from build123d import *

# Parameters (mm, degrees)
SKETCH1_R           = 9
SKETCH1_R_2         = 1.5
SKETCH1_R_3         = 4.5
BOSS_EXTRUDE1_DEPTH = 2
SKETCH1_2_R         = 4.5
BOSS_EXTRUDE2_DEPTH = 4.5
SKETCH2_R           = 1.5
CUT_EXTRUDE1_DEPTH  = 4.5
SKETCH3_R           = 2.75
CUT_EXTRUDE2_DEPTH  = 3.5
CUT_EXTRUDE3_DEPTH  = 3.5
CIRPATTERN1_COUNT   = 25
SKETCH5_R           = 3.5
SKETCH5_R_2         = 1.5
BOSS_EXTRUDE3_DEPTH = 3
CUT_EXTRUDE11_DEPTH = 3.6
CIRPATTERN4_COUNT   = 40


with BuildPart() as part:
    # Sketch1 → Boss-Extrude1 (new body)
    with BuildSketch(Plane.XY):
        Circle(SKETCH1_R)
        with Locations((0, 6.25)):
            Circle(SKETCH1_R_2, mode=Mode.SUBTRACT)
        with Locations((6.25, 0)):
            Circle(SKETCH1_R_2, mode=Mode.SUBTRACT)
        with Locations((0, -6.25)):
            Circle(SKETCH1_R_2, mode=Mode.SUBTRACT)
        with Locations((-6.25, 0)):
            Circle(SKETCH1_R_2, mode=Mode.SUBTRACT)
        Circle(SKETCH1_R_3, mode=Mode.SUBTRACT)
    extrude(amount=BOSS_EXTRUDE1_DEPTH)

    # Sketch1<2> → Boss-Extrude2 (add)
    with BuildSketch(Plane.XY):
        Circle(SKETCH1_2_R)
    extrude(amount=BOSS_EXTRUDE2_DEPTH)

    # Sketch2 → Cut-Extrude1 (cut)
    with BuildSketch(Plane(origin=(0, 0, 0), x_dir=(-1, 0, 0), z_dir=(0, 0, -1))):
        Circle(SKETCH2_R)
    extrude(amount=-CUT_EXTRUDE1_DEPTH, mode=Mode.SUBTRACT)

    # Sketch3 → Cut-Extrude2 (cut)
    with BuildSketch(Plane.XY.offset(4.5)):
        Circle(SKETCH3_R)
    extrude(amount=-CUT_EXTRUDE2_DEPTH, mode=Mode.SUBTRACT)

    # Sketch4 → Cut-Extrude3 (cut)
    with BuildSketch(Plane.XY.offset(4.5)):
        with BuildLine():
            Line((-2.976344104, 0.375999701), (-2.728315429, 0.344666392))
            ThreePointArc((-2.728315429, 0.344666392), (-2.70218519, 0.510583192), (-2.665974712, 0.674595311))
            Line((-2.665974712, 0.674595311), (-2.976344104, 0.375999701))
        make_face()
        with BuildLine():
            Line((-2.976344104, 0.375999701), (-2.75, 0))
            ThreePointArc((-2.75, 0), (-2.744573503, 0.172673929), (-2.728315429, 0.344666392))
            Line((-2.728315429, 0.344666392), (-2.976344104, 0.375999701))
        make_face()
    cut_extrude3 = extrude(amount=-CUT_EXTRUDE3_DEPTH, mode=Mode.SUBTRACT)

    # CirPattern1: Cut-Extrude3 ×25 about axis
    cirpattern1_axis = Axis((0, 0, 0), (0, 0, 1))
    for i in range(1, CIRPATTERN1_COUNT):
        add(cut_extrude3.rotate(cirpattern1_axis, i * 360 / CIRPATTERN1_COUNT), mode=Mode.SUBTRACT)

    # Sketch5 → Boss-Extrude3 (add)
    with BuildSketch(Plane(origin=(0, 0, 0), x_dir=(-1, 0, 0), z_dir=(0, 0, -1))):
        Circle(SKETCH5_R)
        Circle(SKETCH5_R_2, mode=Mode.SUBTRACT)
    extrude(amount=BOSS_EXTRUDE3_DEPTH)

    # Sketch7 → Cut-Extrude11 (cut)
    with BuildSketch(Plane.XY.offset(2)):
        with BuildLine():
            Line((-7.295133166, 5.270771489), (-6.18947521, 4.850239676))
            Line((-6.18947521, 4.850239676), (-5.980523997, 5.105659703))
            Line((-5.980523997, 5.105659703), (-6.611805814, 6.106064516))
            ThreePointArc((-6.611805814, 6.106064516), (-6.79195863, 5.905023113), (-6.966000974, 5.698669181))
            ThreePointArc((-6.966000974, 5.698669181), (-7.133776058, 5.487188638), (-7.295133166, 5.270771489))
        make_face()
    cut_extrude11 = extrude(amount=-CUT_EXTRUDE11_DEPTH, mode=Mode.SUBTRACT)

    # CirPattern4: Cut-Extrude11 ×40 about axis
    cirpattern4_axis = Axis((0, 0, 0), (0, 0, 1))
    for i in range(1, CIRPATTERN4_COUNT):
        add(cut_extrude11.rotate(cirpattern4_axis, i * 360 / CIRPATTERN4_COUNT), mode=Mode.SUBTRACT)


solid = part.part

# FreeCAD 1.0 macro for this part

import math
import FreeCAD as App
import Part
import Sketcher

doc = App.newDocument("Part")
body = doc.addObject("PartDesign::Body", "Body")

# Sketch on XY plane
sketch1 = doc.addObject("Sketcher::SketchObject", "Sketch")
body.addObject(sketch1)
sketch1.AttachmentSupport = (doc.XY_Plane, [""])
sketch1.MapMode = "FlatFace"
sketch1.addGeometry([
    Part.Circle(App.Vector(0, 0, 0), App.Vector(0, 0, 1), 9),  # 0
    Part.Circle(App.Vector(0, -6.2, 0), App.Vector(0, 0, 1), 1.5),  # 1
    Part.Circle(App.Vector(-6.2, 0, 0), App.Vector(0, 0, 1), 1.5),  # 2
    Part.Circle(App.Vector(0, 0, 0), App.Vector(0, 0, 1), 4.5),  # 3
    Part.Circle(App.Vector(6.2, 0, 0), App.Vector(0, 0, 1), 1.5),  # 4
    Part.Circle(App.Vector(0, 6.2, 0), App.Vector(0, 0, 1), 1.5),  # 5
], False)
sketch1.addConstraint([
    Sketcher.Constraint("Coincident", 0, 3, -1, 1),
    Sketcher.Constraint("Coincident", 3, 3, -1, 1),
    Sketcher.Constraint("Equal", 1, 2),
    Sketcher.Constraint("Equal", 2, 4),
    Sketcher.Constraint("Equal", 4, 5),
    Sketcher.Constraint("Symmetric", 2, 3, 4, 3, -1, 1),
    Sketcher.Constraint("Symmetric", 1, 3, 5, 3, -1, 1),
    Sketcher.Constraint("PointOnObject", 1, 3, -2),
    Sketcher.Constraint("PointOnObject", 2, 3, -1),
    Sketcher.Constraint("Diameter", 0, 18.0),
    Sketcher.Constraint("Diameter", 1, 3.0),
    Sketcher.Constraint("Diameter", 3, 9.0),
    Sketcher.Constraint("DistanceX", 2, 3, 4, 3, 12.5),
    Sketcher.Constraint("DistanceY", 1, 3, 5, 3, 12.5),
])
pad1 = doc.addObject("PartDesign::Pad", "Pad")
body.addObject(pad1)
pad1.Profile = sketch1
pad1.Length = 2

# Sketch on XY plane
sketch2 = doc.addObject("Sketcher::SketchObject", "Sketch001")
body.addObject(sketch2)
sketch2.AttachmentSupport = (doc.XY_Plane, [""])
sketch2.MapMode = "FlatFace"
sketch2.addGeometry(Part.Circle(App.Vector(0, 0, 0), App.Vector(0, 0, 1), 4.5), False)
sketch2.addConstraint([
    Sketcher.Constraint("Coincident", 0, 3, -1, 1),
    Sketcher.Constraint("Diameter", 0, 9.0),
])
pad2 = doc.addObject("PartDesign::Pad", "Pad001")
body.addObject(pad2)
pad2.Profile = sketch2
pad2.Length = 4.5

# Sketch on XY plane
sketch3 = doc.addObject("Sketcher::SketchObject", "Sketch002")
body.addObject(sketch3)
sketch3.AttachmentSupport = (doc.XY_Plane, [""])
sketch3.MapMode = "FlatFace"
sketch3.addGeometry(Part.Circle(App.Vector(0, 0, 0), App.Vector(0, 0, 1), 1.5), False)
sketch3.addConstraint([
    Sketcher.Constraint("Coincident", 0, 3, -1, 1),
    Sketcher.Constraint("Diameter", 0, 3.0),
])
pocket1 = doc.addObject("PartDesign::Pocket", "Pocket")
body.addObject(pocket1)
pocket1.Profile = sketch3
pocket1.Length = 4.5
pocket1.Reversed = True

# Sketch on XY plane
sketch4 = doc.addObject("Sketcher::SketchObject", "Sketch003")
body.addObject(sketch4)
sketch4.AttachmentSupport = (doc.XY_Plane, [""])
sketch4.MapMode = "FlatFace"
sketch4.AttachmentOffset = App.Placement(App.Vector(0, 0, 4.5), App.Rotation())
sketch4.addGeometry(Part.Circle(App.Vector(0, 0, 0), App.Vector(0, 0, 1), 2.8), False)
sketch4.addConstraint([
    Sketcher.Constraint("Coincident", 0, 3, -1, 1),
    Sketcher.Constraint("Diameter", 0, 5.5),
])
pocket2 = doc.addObject("PartDesign::Pocket", "Pocket001")
body.addObject(pocket2)
pocket2.Profile = sketch4
pocket2.Length = 3.5

# Sketch on XY plane
sketch5 = doc.addObject("Sketcher::SketchObject", "Sketch004")
body.addObject(sketch5)
sketch5.AttachmentSupport = (doc.XY_Plane, [""])
sketch5.MapMode = "FlatFace"
sketch5.AttachmentOffset = App.Placement(App.Vector(0, 0, 4.5), App.Rotation())
sketch5.addGeometry([
    Part.ArcOfCircle(Part.Circle(App.Vector(0, 0, 0), App.Vector(0, 0, 1), 2.75), math.radians(165.8), math.radians(172.8)),
    Part.LineSegment(App.Vector(-2.67, 0.67, 0), App.Vector(-2.98, 0.38, 0)),
    Part.LineSegment(App.Vector(-2.98, 0.38, 0), App.Vector(-2.75, 0, 0)),
    Part.ArcOfCircle(Part.Circle(App.Vector(0, 0, 0), App.Vector(0, 0, 1), 2.75), math.radians(172.8), math.radians(180)),
], False)
sketch5.addConstraint([
    Sketcher.Constraint("Coincident", 0, 1, 1, 1),
    Sketcher.Constraint("Coincident", 1, 2, 2, 1),
    Sketcher.Constraint("Coincident", 2, 2, 3, 2),
    Sketcher.Constraint("Tangent", 3, 1, 0, 2),
    Sketcher.Constraint("Coincident", 0, 3, -1, 1),
    Sketcher.Constraint("Equal", 0, 3),
    Sketcher.Constraint("PointOnObject", 2, 2, -1),
    Sketcher.Constraint("Radius", 0, 2.75),
    Sketcher.Constraint("DistanceY", -1, 1, 1, 2, 0.376),
    Sketcher.Constraint("Distance", 2, 0.438871),
    Sketcher.Constraint("DistanceX", 1, 2, 0, 1, 0.310369),
    Sketcher.Constraint("DistanceX", 1, 2, 3, 1, 0.248029),
])
pocket3 = doc.addObject("PartDesign::Pocket", "Pocket002")
body.addObject(pocket3)
pocket3.Profile = sketch5
pocket3.Length = 3.5
doc.recompute()

polarpattern = doc.addObject("PartDesign::PolarPattern", "PolarPattern")
body.addObject(polarpattern)
polarpattern.Originals = [pocket3]
polarpattern.Axis = (doc.Z_Axis, [""])
polarpattern.Angle = 360
polarpattern.Occurrences = 25
body.Tip = polarpattern

# Sketch on XY plane
sketch6 = doc.addObject("Sketcher::SketchObject", "Sketch005")
body.addObject(sketch6)
sketch6.AttachmentSupport = (doc.XY_Plane, [""])
sketch6.MapMode = "FlatFace"
sketch6.addGeometry([
    Part.Circle(App.Vector(0, 0, 0), App.Vector(0, 0, 1), 3.5),
    Part.Circle(App.Vector(0, 0, 0), App.Vector(0, 0, 1), 1.5),
], False)
sketch6.addConstraint([
    Sketcher.Constraint("Coincident", 0, 3, -1, 1),
    Sketcher.Constraint("Coincident", 1, 3, -1, 1),
    Sketcher.Constraint("Diameter", 0, 7.0),
    Sketcher.Constraint("Diameter", 1, 3.0),
])
pad3 = doc.addObject("PartDesign::Pad", "Pad002")
body.addObject(pad3)
pad3.Profile = sketch6
pad3.Length = 3
pad3.Reversed = True

# Sketch on XY plane
sketch7 = doc.addObject("Sketcher::SketchObject", "Sketch006")
body.addObject(sketch7)
sketch7.AttachmentSupport = (doc.XY_Plane, [""])
sketch7.MapMode = "FlatFace"
sketch7.AttachmentOffset = App.Placement(App.Vector(0, 0, 2), App.Rotation())
sketch7.addGeometry([
    Part.LineSegment(App.Vector(-7.3, 5.27, 0), App.Vector(-6.19, 4.85, 0)),  # 0
    Part.LineSegment(App.Vector(-6.19, 4.85, 0), App.Vector(-5.98, 5.11, 0)),  # 1
    Part.LineSegment(App.Vector(-5.98, 5.11, 0), App.Vector(-6.61, 6.11, 0)),  # 2
    Part.ArcOfCircle(Part.Circle(App.Vector(0, 0, 0), App.Vector(0, 0, 1), 9), math.radians(137.28), math.radians(140.71)),  # 3
    Part.ArcOfCircle(Part.Circle(App.Vector(0, 0, 0), App.Vector(0, 0, 1), 9), math.radians(140.71), math.radians(144.15)),  # 4
], False)
sketch7.addConstraint([
    Sketcher.Constraint("Coincident", 0, 2, 1, 1),
    Sketcher.Constraint("Coincident", 1, 2, 2, 1),
    Sketcher.Constraint("Coincident", 2, 2, 3, 1),
    Sketcher.Constraint("Tangent", 3, 2, 4, 1),
    Sketcher.Constraint("Coincident", 4, 2, 0, 1),
    Sketcher.Constraint("Coincident", 3, 3, -1, 1),
    Sketcher.Constraint("Equal", 3, 4),
    Sketcher.Constraint("Equal", 0, 2),
    Sketcher.Constraint("Radius", 3, 9.0),
    Sketcher.Constraint("Distance", 1, 0.33),
    Sketcher.Constraint("DistanceX", 3, 2, -1, 1, 6.966001),
    Sketcher.Constraint("Distance", 0, 1.182931),
    Sketcher.Constraint("DistanceY", -1, 1, 0, 2, 4.85024),
    Sketcher.Constraint("DistanceY", -1, 1, 1, 2, 5.10566),
    Sketcher.Constraint("DistanceY", -1, 1, 4, 2, 5.270771),
])
pocket4 = doc.addObject("PartDesign::Pocket", "Pocket003")
body.addObject(pocket4)
pocket4.Profile = sketch7
pocket4.Length = 3.6
doc.recompute()

polarpattern2 = doc.addObject("PartDesign::PolarPattern", "PolarPattern001")
body.addObject(polarpattern2)
polarpattern2.Originals = [pocket4]
polarpattern2.Axis = (doc.Z_Axis, [""])
polarpattern2.Angle = 360
polarpattern2.Occurrences = 40
body.Tip = polarpattern2

doc.recompute()
